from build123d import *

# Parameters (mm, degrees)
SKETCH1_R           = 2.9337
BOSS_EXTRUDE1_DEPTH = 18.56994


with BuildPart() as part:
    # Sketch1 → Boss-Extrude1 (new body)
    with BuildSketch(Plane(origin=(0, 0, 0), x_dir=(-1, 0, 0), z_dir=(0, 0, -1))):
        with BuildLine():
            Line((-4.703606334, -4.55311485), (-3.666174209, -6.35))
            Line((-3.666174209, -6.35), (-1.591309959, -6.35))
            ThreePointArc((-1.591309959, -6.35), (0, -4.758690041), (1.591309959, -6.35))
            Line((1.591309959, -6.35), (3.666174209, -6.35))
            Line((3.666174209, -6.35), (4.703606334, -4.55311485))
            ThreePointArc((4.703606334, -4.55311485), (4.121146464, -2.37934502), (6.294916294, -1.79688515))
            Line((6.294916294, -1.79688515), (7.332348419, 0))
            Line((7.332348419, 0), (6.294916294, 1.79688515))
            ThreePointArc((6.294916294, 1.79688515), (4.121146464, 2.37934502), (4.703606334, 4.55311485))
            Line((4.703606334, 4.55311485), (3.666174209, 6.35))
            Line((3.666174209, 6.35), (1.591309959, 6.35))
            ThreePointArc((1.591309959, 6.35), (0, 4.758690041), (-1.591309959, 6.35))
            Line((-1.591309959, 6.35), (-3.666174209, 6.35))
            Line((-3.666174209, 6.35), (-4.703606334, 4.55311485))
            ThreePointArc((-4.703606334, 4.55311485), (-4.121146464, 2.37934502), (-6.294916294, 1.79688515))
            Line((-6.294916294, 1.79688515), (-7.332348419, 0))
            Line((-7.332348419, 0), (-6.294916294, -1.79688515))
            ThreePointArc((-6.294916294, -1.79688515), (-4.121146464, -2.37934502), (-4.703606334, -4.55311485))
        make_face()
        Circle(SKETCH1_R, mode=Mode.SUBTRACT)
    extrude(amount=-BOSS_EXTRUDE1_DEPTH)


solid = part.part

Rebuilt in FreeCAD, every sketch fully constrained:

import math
import FreeCAD as App
import Part
import Sketcher
from FreeCAD import Vector
Q = App.Units.Quantity

doc = App.newDocument("Part")
body = doc.addObject("PartDesign::Body", "Body")

# Sketch on XY plane
sketch1 = doc.addObject("Sketcher::SketchObject", "Sketch")
body.addObject(sketch1)
sketch1.AttachmentSupport = (doc.XY_Plane, [""])
sketch1.MapMode = "FlatFace"
sketch1.addGeometry([
    Part.LineSegment(Vector(4.7, -4.6, 0), Vector(3.7, -6.3, 0)),  # 0
    Part.LineSegment(Vector(3.7, -6.3, 0), Vector(1.6, -6.3, 0)),  # 1
    Part.ArcOfCircle(Part.Circle(Vector(0, -6.3, 0), Vector(0, 0, 1), 1.6), math.radians(0), math.radians(180)),  # 2
    Part.LineSegment(Vector(-1.6, -6.3, 0), Vector(-3.7, -6.3, 0)),  # 3
    Part.LineSegment(Vector(-3.7, -6.3, 0), Vector(-4.7, -4.6, 0)),  # 4
    Part.ArcOfCircle(Part.Circle(Vector(-5.5, -3.2, 0), Vector(0, 0, 1), 1.6), math.radians(-60), math.radians(120)),  # 5
    Part.LineSegment(Vector(-6.3, -1.8, 0), Vector(-7.3, 0, 0)),  # 6
    Part.LineSegment(Vector(-7.3, 0, 0), Vector(-6.3, 1.8, 0)),  # 7
    Part.ArcOfCircle(Part.Circle(Vector(-5.5, 3.2, 0), Vector(0, 0, 1), 1.6), math.radians(-120), math.radians(60)),  # 8
    Part.LineSegment(Vector(-4.7, 4.6, 0), Vector(-3.7, 6.3, 0)),  # 9
    Part.LineSegment(Vector(-3.7, 6.3, 0), Vector(-1.6, 6.3, 0)),  # 10
    Part.ArcOfCircle(Part.Circle(Vector(0, 6.3, 0), Vector(0, 0, 1), 1.6), math.radians(180), math.radians(360)),  # 11
    Part.LineSegment(Vector(1.6, 6.3, 0), Vector(3.7, 6.3, 0)),  # 12
    Part.LineSegment(Vector(3.7, 6.3, 0), Vector(4.7, 4.6, 0)),  # 13
    Part.ArcOfCircle(Part.Circle(Vector(5.5, 3.2, 0), Vector(0, 0, 1), 1.6), math.radians(120), math.radians(300)),  # 14
    Part.LineSegment(Vector(6.3, 1.8, 0), Vector(7.3, 0, 0)),  # 15
    Part.LineSegment(Vector(7.3, 0, 0), Vector(6.3, -1.8, 0)),  # 16
    Part.ArcOfCircle(Part.Circle(Vector(5.5, -3.2, 0), Vector(0, 0, 1), 1.6), math.radians(60), math.radians(240)),  # 17
    Part.Circle(Vector(0, 0, 0), Vector(0, 0, 1), 2.9),  # 18
], False)
sketch1.addConstraint([
    Sketcher.Constraint("Coincident", 0, 2, 1, 1),
    Sketcher.Constraint("Coincident", 1, 2, 2, 1),
    Sketcher.Constraint("Coincident", 2, 2, 3, 1),
    Sketcher.Constraint("Coincident", 3, 2, 4, 1),
    Sketcher.Constraint("Coincident", 4, 2, 5, 1),
    Sketcher.Constraint("Coincident", 5, 2, 6, 1),
    Sketcher.Constraint("Coincident", 6, 2, 7, 1),
    Sketcher.Constraint("Coincident", 7, 2, 8, 1),
    Sketcher.Constraint("Coincident", 8, 2, 9, 1),
    Sketcher.Constraint("Coincident", 9, 2, 10, 1),
    Sketcher.Constraint("Coincident", 10, 2, 11, 1),
    Sketcher.Constraint("Coincident", 11, 2, 12, 1),
    Sketcher.Constraint("Coincident", 12, 2, 13, 1),
    Sketcher.Constraint("Coincident", 13, 2, 14, 1),
    Sketcher.Constraint("Coincident", 14, 2, 15, 1),
    Sketcher.Constraint("Coincident", 15, 2, 16, 1),
    Sketcher.Constraint("Coincident", 16, 2, 17, 1),
    Sketcher.Constraint("Coincident", 17, 2, 0, 1),
    Sketcher.Constraint("Horizontal", 1),
    Sketcher.Constraint("Horizontal", 3),
    Sketcher.Constraint("Horizontal", 10),
    Sketcher.Constraint("Horizontal", 12),
    Sketcher.Constraint("Coincident", 18, 3, -1, 1),
    Sketcher.Constraint("Equal", 2, 5),
    Sketcher.Constraint("Equal", 5, 8),
    Sketcher.Constraint("Equal", 8, 11),
    Sketcher.Constraint("Equal", 11, 14),
    Sketcher.Constraint("Equal", 14, 17),
    Sketcher.Constraint("Symmetric", 2, 3, 11, 3, -1, 1),
    Sketcher.Constraint("Symmetric", 5, 3, 14, 3, -1, 1),
    Sketcher.Constraint("Symmetric", 8, 3, 17, 3, -1, 1),
    Sketcher.Constraint("Symmetric", 0, 2, 9, 2, -1, 1),
    Sketcher.Constraint("Symmetric", 3, 2, 12, 2, -1, 1),
    Sketcher.Constraint("Symmetric", 6, 2, 15, 2, -1, 1),
    Sketcher.Constraint("Symmetric", 8, 3, 14, 3, -2),
    Sketcher.Constraint("Symmetric", 1, 2, 2, 2, -2),
    Sketcher.Constraint("PointOnObject", 6, 2, -1),
    Sketcher.Constraint("Parallel", 4, 6),
    Sketcher.Constraint("Parallel", 0, 7),
    Sketcher.Constraint("Parallel", 7, 9),
    Sketcher.Constraint("Parallel", 6, 13),
    Sketcher.Constraint("Parallel", 13, 15),
    Sketcher.Constraint("Parallel", 9, 16),
    Sketcher.Constraint("Horizontal", 2, 3, 0, 2),
    Sketcher.Constraint("Horizontal", 8, 2, 13, 2),
    Sketcher.Constraint("Horizontal", 7, 2, 14, 2),
    Sketcher.Constraint("Equal", 4, 6),
    Sketcher.Constraint("Diameter", 18, Q("0.231 in")),
    Sketcher.Constraint("Angle", 0, Q("-120 deg")),
    Sketcher.Constraint("DistanceY", 2, 3, 11, 3, Q("0.5 in")),
    Sketcher.Constraint("DistanceY", 5, 3, 8, 3, Q("0.25 in")),
    Sketcher.Constraint("Radius", 2, 1.59131),
    Sketcher.Constraint("DistanceX", 1, 2, 1, 1, 2.074864),
    Sketcher.Constraint("DistanceX", 5, 3, -1, 1, 5.499261),
])
pad1 = doc.addObject("PartDesign::Pad", "Pad")
body.addObject(pad1)
pad1.Profile = sketch1
pad1.Length = Q("0.7311 in")

doc.recompute()
